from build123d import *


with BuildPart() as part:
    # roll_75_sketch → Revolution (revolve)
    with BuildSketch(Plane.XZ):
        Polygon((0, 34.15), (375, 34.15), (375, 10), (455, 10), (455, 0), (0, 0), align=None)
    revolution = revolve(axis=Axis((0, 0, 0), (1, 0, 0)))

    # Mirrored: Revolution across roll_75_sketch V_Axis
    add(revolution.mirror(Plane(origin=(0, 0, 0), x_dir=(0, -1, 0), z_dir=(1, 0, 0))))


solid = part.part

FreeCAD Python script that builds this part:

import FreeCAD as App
import Part
import Sketcher

V = App.Vector
Q = App.Units.Quantity

doc = App.newDocument("Part")
body = doc.addObject("PartDesign::Body", "Body")

sketch1 = doc.addObject("Sketcher::SketchObject", "Sketch")
body.addObject(sketch1)
sketch1.AttachmentSupport = (doc.XZ_Plane, [""])
sketch1.MapMode = "FlatFace"
sketch1.addGeometry(Part.LineSegment(V(375, 34, 0), V(0, 34, 0)), False)
sketch1.addGeometry(Part.LineSegment(V(0, 34, 0), V(0, 0, 0)), False)
sketch1.addGeometry(Part.LineSegment(V(0, 0, 0), V(455, 0, 0)), False)
sketch1.addGeometry(Part.LineSegment(V(455, 0, 0), V(455, 10, 0)), False)
sketch1.addGeometry(Part.LineSegment(V(455, 10, 0), V(375, 10, 0)), False)
sketch1.addGeometry(Part.LineSegment(V(375, 10, 0), V(375, 34, 0)), False)
sketch1.addConstraint(Sketcher.Constraint("Coincident", 0, 2, 1, 1))
sketch1.addConstraint(Sketcher.Constraint("Coincident", 1, 2, 2, 1))
sketch1.addConstraint(Sketcher.Constraint("Coincident", 2, 2, 3, 1))
sketch1.addConstraint(Sketcher.Constraint("Coincident", 3, 2, 4, 1))
sketch1.addConstraint(Sketcher.Constraint("Coincident", 4, 2, 5, 1))
sketch1.addConstraint(Sketcher.Constraint("Coincident", 5, 2, 0, 1))
sketch1.addConstraint(Sketcher.Constraint("Horizontal", 0))
sketch1.addConstraint(Sketcher.Constraint("Vertical", 1))
sketch1.addConstraint(Sketcher.Constraint("Horizontal", 2))
sketch1.addConstraint(Sketcher.Constraint("Vertical", 3))
sketch1.addConstraint(Sketcher.Constraint("Horizontal", 4))
sketch1.addConstraint(Sketcher.Constraint("Vertical", 5))
sketch1.addConstraint(Sketcher.Constraint("Coincident", 1, 2, -1, 1))
sketch1.addConstraint(Sketcher.Constraint("DistanceX", 0, 2, 0, 1, Q("375 mm")))
sketch1.addConstraint(Sketcher.Constraint("DistanceX", 2, 1, 2, 2, Q("455 mm")))
sketch1.addConstraint(Sketcher.Constraint("DistanceY", 3, 1, 3, 2, Q("10 mm")))
sketch1.addConstraint(Sketcher.Constraint("DistanceY", 1, 2, 1, 1, Q("34.15 mm")))
revolution = doc.addObject("PartDesign::Revolution", "Revolution")
body.addObject(revolution)
revolution.Profile = sketch1
revolution.ReferenceAxis = (sketch1, ["H_Axis"])
revolution.Angle = 360
doc.recompute()

mirrored = doc.addObject("PartDesign::Mirrored", "Mirrored")
body.addObject(mirrored)
mirrored.Originals = [revolution]
mirrored.MirrorPlane = (doc.YZ_Plane, [""])
body.Tip = mirrored

doc.recompute()
